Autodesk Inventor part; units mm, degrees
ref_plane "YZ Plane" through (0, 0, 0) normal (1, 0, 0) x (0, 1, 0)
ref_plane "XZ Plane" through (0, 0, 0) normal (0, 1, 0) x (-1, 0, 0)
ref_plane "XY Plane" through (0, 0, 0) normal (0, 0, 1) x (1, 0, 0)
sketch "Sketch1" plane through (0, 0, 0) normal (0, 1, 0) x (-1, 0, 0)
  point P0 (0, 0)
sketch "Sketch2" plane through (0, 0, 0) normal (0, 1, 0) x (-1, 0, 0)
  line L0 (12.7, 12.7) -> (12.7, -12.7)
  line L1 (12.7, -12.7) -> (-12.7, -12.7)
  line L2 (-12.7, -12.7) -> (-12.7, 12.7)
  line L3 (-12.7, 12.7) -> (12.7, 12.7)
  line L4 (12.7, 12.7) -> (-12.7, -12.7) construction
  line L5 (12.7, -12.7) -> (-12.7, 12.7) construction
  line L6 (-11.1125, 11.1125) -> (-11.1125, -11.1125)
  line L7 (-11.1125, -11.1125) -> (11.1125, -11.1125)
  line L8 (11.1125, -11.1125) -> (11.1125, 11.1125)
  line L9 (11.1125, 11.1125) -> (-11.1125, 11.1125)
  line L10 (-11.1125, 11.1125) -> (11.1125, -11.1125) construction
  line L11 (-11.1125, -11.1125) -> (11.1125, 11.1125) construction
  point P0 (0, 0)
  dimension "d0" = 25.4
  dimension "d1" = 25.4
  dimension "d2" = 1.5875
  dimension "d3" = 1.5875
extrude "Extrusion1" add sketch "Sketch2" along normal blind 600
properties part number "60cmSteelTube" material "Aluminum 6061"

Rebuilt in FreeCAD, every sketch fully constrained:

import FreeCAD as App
import Part
import Sketcher

V = App.Vector
Q = App.Units.Quantity

doc = App.newDocument("Part")
body = doc.addObject("PartDesign::Body", "Body")

sketch1 = body.newObject("Sketcher::SketchObject", "Sketch")
sketch1.AttachmentSupport = (doc.getObject("XZ_Plane"), [""])
sketch1.MapMode = "FlatFace"
sketch1.addGeometry([
    Part.LineSegment(V(-13, -13, 0), V(-13, 13, 0)),
    Part.LineSegment(V(-13, 13, 0), V(13, 13, 0)),
    Part.LineSegment(V(13, 13, 0), V(13, -13, 0)),
    Part.LineSegment(V(13, -13, 0), V(-13, -13, 0)),
    Part.LineSegment(V(11, -11, 0), V(11, 11, 0)),
    Part.LineSegment(V(11, 11, 0), V(-11, 11, 0)),
    Part.LineSegment(V(-11, 11, 0), V(-11, -11, 0)),
    Part.LineSegment(V(-11, -11, 0), V(11, -11, 0)),
], False)
sketch1.addConstraint([
    Sketcher.Constraint("Coincident", 0, 2, 1, 1),
    Sketcher.Constraint("Coincident", 1, 2, 2, 1),
    Sketcher.Constraint("Coincident", 2, 2, 3, 1),
    Sketcher.Constraint("Coincident", 3, 2, 0, 1),
    Sketcher.Constraint("Coincident", 4, 2, 5, 1),
    Sketcher.Constraint("Coincident", 5, 2, 6, 1),
    Sketcher.Constraint("Coincident", 6, 2, 7, 1),
    Sketcher.Constraint("Coincident", 7, 2, 4, 1),
    Sketcher.Constraint("Vertical", 0),
    Sketcher.Constraint("Horizontal", 1),
    Sketcher.Constraint("Vertical", 2),
    Sketcher.Constraint("Horizontal", 3),
    Sketcher.Constraint("Vertical", 4),
    Sketcher.Constraint("Horizontal", 5),
    Sketcher.Constraint("Vertical", 6),
    Sketcher.Constraint("Horizontal", 7),
    Sketcher.Constraint("Symmetric", 0, 2, 2, 2, -1, 1),
    Sketcher.Constraint("Symmetric", 4, 2, 6, 2, -1, 1),
    Sketcher.Constraint("Equal", 3, 0),
    Sketcher.Constraint("Equal", 7, 4),
    Sketcher.Constraint("DistanceX", 1, 1, 1, 2, Q("1 in")),
    Sketcher.Constraint("DistanceX", 4, 2, 1, 2, Q("0.0625 in")),
])
pad1 = body.newObject("PartDesign::Pad", "Pad")
pad1.Profile = sketch1
pad1.Length = 600
pad1.Reversed = True

doc.recompute()
